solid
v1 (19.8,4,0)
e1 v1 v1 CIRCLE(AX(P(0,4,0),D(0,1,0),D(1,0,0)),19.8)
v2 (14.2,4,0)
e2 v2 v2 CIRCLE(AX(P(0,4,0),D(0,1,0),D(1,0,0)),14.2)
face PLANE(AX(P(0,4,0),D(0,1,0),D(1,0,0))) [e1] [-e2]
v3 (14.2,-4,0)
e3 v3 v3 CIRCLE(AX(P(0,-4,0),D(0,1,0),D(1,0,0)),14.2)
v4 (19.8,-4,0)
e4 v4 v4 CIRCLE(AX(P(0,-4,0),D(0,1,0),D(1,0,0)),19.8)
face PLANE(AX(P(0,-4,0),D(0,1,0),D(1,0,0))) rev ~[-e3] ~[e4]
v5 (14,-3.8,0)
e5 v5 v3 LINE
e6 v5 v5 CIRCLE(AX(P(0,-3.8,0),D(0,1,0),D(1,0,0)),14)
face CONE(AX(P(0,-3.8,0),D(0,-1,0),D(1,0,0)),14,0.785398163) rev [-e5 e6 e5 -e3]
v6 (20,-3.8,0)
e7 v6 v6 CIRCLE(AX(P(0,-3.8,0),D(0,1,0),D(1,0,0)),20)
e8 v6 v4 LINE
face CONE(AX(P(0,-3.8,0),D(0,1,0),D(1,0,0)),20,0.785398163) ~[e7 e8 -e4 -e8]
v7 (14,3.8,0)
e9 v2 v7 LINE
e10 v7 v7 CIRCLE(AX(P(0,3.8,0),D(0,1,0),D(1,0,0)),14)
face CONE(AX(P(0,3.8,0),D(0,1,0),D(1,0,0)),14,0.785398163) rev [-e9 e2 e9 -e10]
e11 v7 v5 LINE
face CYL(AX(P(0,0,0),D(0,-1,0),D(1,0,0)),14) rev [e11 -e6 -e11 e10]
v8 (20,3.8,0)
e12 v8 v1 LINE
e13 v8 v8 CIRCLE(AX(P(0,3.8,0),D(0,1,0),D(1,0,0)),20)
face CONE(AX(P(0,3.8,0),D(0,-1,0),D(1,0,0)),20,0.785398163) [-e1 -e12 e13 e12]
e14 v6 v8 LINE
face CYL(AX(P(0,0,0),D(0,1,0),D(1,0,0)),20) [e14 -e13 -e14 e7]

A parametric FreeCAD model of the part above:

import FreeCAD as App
import Part
import Sketcher

V = App.Vector
Q = App.Units.Quantity


def edges_at(feature, points):
    """Names of the edges that pass closest to the given points."""
    edges = feature.Shape.Edges
    near = lambda p: min(range(len(edges)), key=lambda i: edges[i].distToShape(Part.Vertex(*p))[0])
    return sorted({f"Edge{near(p) + 1}" for p in points})

doc = App.newDocument("Part")
body = doc.addObject("PartDesign::Body", "Body")

# Sketch on XZ plane
sketch1 = body.newObject("Sketcher::SketchObject", "Sketch")
sketch1.AttachmentSupport = (doc.getObject("XZ_Plane"), [""])
sketch1.MapMode = "FlatFace"
sketch1.addGeometry(Part.Circle(V(0, 0, 0), V(0, 0, 1), 20), False)
sketch1.addGeometry(Part.Circle(V(0, 0, 0), V(0, 0, 1), 14), False)
sketch1.addConstraint(Sketcher.Constraint("Coincident", 0, 3, -1, 1))
sketch1.addConstraint(Sketcher.Constraint("Coincident", 1, 3, -1, 1))
sketch1.addConstraint(Sketcher.Constraint("Diameter", 0, Q("40 mm")))
sketch1.addConstraint(Sketcher.Constraint("Diameter", 1, Q("28 mm")))
pad1 = body.newObject("PartDesign::Pad", "Pad")
pad1.Profile = sketch1
pad1.Length = 8
pad1.Midplane = True
doc.recompute()

chamfer = body.newObject("PartDesign::Chamfer", "Chamfer")
chamfer.Base = (pad1, edges_at(pad1, [
    (-20, -4, 0),
    (-20, 4, 0),
    (-14, -4, 0),
    (-14, 4, 0),
]))
chamfer.Size = 0.2

doc.recompute()
